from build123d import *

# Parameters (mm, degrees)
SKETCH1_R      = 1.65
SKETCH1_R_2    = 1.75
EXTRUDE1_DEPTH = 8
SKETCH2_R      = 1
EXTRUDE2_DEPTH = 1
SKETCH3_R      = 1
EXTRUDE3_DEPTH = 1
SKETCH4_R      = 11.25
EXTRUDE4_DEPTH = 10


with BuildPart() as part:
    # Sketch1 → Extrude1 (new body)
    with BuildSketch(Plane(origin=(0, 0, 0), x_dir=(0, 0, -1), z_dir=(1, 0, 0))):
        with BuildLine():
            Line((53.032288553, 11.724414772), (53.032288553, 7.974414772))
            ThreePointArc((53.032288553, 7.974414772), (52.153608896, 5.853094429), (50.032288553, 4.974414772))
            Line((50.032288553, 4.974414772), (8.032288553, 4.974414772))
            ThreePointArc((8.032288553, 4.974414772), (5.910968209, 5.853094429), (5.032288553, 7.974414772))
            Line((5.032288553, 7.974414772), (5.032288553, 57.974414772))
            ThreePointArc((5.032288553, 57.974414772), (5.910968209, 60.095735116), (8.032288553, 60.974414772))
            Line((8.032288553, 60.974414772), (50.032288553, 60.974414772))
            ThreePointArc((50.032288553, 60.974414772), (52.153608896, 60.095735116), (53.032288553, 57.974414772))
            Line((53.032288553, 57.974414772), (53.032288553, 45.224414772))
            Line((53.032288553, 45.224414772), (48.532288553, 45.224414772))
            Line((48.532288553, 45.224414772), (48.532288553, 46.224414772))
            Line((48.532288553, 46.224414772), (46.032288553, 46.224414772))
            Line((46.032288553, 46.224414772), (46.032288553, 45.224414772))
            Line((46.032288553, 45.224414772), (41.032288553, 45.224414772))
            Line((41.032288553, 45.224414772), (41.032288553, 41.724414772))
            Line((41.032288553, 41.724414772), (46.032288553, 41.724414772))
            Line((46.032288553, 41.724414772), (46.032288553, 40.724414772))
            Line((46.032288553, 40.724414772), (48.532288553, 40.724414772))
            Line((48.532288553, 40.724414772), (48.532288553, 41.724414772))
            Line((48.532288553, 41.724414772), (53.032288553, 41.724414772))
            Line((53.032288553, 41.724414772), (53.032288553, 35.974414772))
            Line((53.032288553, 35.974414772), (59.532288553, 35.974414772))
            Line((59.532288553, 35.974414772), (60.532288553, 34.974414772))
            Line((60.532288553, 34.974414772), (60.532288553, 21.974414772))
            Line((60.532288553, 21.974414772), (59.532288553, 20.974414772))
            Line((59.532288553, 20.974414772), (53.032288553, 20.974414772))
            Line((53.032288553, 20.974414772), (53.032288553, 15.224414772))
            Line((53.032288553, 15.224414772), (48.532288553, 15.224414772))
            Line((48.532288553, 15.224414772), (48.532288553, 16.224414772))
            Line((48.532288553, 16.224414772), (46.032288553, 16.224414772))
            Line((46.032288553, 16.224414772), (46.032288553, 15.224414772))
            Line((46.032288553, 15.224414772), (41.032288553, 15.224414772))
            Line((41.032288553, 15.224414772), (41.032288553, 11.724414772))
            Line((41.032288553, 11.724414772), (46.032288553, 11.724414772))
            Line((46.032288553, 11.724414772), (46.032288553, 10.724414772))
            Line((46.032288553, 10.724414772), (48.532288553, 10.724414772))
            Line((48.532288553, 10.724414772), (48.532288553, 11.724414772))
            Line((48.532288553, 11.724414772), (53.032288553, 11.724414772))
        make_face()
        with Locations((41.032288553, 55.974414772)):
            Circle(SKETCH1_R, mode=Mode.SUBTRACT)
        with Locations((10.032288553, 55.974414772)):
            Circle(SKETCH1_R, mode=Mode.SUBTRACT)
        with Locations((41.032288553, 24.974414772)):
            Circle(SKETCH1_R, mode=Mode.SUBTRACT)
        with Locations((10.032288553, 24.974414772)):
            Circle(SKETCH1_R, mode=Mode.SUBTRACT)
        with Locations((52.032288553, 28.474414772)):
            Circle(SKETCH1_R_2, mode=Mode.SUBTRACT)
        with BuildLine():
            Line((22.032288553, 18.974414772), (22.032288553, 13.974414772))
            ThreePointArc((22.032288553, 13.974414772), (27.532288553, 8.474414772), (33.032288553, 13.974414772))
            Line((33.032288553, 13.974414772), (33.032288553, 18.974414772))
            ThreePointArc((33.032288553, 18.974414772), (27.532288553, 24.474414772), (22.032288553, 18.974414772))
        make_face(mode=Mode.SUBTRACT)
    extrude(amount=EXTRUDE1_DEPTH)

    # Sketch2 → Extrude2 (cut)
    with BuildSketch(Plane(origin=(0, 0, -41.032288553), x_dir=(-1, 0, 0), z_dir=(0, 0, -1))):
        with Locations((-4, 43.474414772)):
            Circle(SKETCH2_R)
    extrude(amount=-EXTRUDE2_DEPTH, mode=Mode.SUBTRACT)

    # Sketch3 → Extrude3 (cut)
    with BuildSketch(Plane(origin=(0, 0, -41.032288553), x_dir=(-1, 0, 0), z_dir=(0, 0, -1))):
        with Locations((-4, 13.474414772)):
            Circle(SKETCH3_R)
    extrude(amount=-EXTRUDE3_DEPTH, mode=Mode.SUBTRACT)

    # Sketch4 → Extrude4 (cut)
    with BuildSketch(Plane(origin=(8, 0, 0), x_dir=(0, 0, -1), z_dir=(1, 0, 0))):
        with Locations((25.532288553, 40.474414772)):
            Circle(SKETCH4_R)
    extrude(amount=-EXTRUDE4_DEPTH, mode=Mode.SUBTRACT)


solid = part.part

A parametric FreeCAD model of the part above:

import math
import FreeCAD as App
import Part
import Sketcher
from FreeCAD import Vector

doc = App.newDocument("Part")
body = doc.addObject("PartDesign::Body", "Body")

# Sketch on YZ plane
sketch1 = body.newObject("Sketcher::SketchObject", "Sketch")
sketch1.AttachmentSupport = (doc.getObject("YZ_Plane"), [""])
sketch1.MapMode = "FlatFace"
sketch1.addGeometry([
    Part.LineSegment(Vector(8, -53, 0), Vector(11.7, -53, 0)),  # 0
    Part.LineSegment(Vector(11.7, -53, 0), Vector(11.7, -48.5, 0)),  # 1
    Part.LineSegment(Vector(11.7, -48.5, 0), Vector(10.7, -48.5, 0)),  # 2
    Part.LineSegment(Vector(10.7, -48.5, 0), Vector(10.7, -46, 0)),  # 3
    Part.LineSegment(Vector(10.7, -46, 0), Vector(11.7, -46, 0)),  # 4
    Part.LineSegment(Vector(11.7, -46, 0), Vector(11.7, -41, 0)),  # 5
    Part.LineSegment(Vector(11.7, -41, 0), Vector(15.2, -41, 0)),  # 6
    Part.LineSegment(Vector(15.2, -41, 0), Vector(15.2, -46, 0)),  # 7
    Part.LineSegment(Vector(15.2, -46, 0), Vector(16.2, -46, 0)),  # 8
    Part.LineSegment(Vector(16.2, -46, 0), Vector(16.2, -48.5, 0)),  # 9
    Part.LineSegment(Vector(16.2, -48.5, 0), Vector(15.2, -48.5, 0)),  # 10
    Part.LineSegment(Vector(15.2, -48.5, 0), Vector(15.2, -53, 0)),  # 11
    Part.LineSegment(Vector(15.2, -53, 0), Vector(21, -53, 0)),  # 12
    Part.LineSegment(Vector(21, -53, 0), Vector(21, -59.5, 0)),  # 13
    Part.LineSegment(Vector(21, -59.5, 0), Vector(22, -60.5, 0)),  # 14
    Part.LineSegment(Vector(22, -60.5, 0), Vector(35, -60.5, 0)),  # 15
    Part.LineSegment(Vector(35, -60.5, 0), Vector(36, -59.5, 0)),  # 16
    Part.LineSegment(Vector(36, -59.5, 0), Vector(36, -53, 0)),  # 17
    Part.LineSegment(Vector(36, -53, 0), Vector(41.7, -53, 0)),  # 18
    Part.LineSegment(Vector(41.7, -53, 0), Vector(41.7, -48.5, 0)),  # 19
    Part.LineSegment(Vector(41.7, -48.5, 0), Vector(40.7, -48.5, 0)),  # 20
    Part.LineSegment(Vector(40.7, -48.5, 0), Vector(40.7, -46, 0)),  # 21
    Part.LineSegment(Vector(40.7, -46, 0), Vector(41.7, -46, 0)),  # 22
    Part.LineSegment(Vector(41.7, -46, 0), Vector(41.7, -41, 0)),  # 23
    Part.LineSegment(Vector(41.7, -41, 0), Vector(45.2, -41, 0)),  # 24
    Part.LineSegment(Vector(45.2, -41, 0), Vector(45.2, -46, 0)),  # 25
    Part.LineSegment(Vector(45.2, -46, 0), Vector(46.2, -46, 0)),  # 26
    Part.LineSegment(Vector(46.2, -46, 0), Vector(46.2, -48.5, 0)),  # 27
    Part.LineSegment(Vector(46.2, -48.5, 0), Vector(45.2, -48.5, 0)),  # 28
    Part.LineSegment(Vector(45.2, -48.5, 0), Vector(45.2, -53, 0)),  # 29
    Part.LineSegment(Vector(45.2, -53, 0), Vector(58, -53, 0)),  # 30
    Part.ArcOfCircle(Part.Circle(Vector(58, -50, 0), Vector(0, 0, 1), 3), math.radians(-90), math.radians(0)),  # 31
    Part.LineSegment(Vector(61, -50, 0), Vector(61, -8, 0)),  # 32
    Part.ArcOfCircle(Part.Circle(Vector(58, -8, 0), Vector(0, 0, 1), 3), math.radians(0), math.radians(90)),  # 33
    Part.LineSegment(Vector(58, -5, 0), Vector(8, -5, 0)),  # 34
    Part.ArcOfCircle(Part.Circle(Vector(8, -8, 0), Vector(0, 0, 1), 3), math.radians(90), math.radians(180)),  # 35
    Part.LineSegment(Vector(5, -8, 0), Vector(5, -50, 0)),  # 36
    Part.ArcOfCircle(Part.Circle(Vector(8, -50, 0), Vector(0, 0, 1), 3), math.radians(-180), math.radians(-90)),  # 37
    Part.Circle(Vector(28.5, -52, 0), Vector(0, 0, 1), 1.8),  # 38
    Part.Circle(Vector(25, -41, 0), Vector(0, 0, 1), 1.6),  # 39
    Part.ArcOfCircle(Part.Circle(Vector(19, -27.5, 0), Vector(0, 0, 1), 5.5), math.radians(-90), math.radians(90)),  # 40
    Part.LineSegment(Vector(19, -33, 0), Vector(14, -33, 0)),  # 41
    Part.ArcOfCircle(Part.Circle(Vector(14, -27.5, 0), Vector(0, 0, 1), 5.5), math.radians(90), math.radians(270)),  # 42
    Part.LineSegment(Vector(14, -22, 0), Vector(19, -22, 0)),  # 43
    Part.Circle(Vector(25, -10, 0), Vector(0, 0, 1), 1.6),  # 44
    Part.Circle(Vector(56, -41, 0), Vector(0, 0, 1), 1.6),  # 45
    Part.Circle(Vector(56, -10, 0), Vector(0, 0, 1), 1.6),  # 46
], False)
sketch1.addConstraint([
    Sketcher.Constraint("Coincident", 0, 2, 1, 1),
    Sketcher.Constraint("Coincident", 1, 2, 2, 1),
    Sketcher.Constraint("Coincident", 2, 2, 3, 1),
    Sketcher.Constraint("Coincident", 3, 2, 4, 1),
    Sketcher.Constraint("Coincident", 4, 2, 5, 1),
    Sketcher.Constraint("Coincident", 5, 2, 6, 1),
    Sketcher.Constraint("Coincident", 6, 2, 7, 1),
    Sketcher.Constraint("Coincident", 7, 2, 8, 1),
    Sketcher.Constraint("Coincident", 8, 2, 9, 1),
    Sketcher.Constraint("Coincident", 9, 2, 10, 1),
    Sketcher.Constraint("Coincident", 10, 2, 11, 1),
    Sketcher.Constraint("Coincident", 11, 2, 12, 1),
    Sketcher.Constraint("Coincident", 12, 2, 13, 1),
    Sketcher.Constraint("Coincident", 13, 2, 14, 1),
    Sketcher.Constraint("Coincident", 14, 2, 15, 1),
    Sketcher.Constraint("Coincident", 15, 2, 16, 1),
    Sketcher.Constraint("Coincident", 16, 2, 17, 1),
    Sketcher.Constraint("Coincident", 17, 2, 18, 1),
    Sketcher.Constraint("Coincident", 18, 2, 19, 1),
    Sketcher.Constraint("Coincident", 19, 2, 20, 1),
    Sketcher.Constraint("Coincident", 20, 2, 21, 1),
    Sketcher.Constraint("Coincident", 21, 2, 22, 1),
    Sketcher.Constraint("Coincident", 22, 2, 23, 1),
    Sketcher.Constraint("Coincident", 23, 2, 24, 1),
    Sketcher.Constraint("Coincident", 24, 2, 25, 1),
    Sketcher.Constraint("Coincident", 25, 2, 26, 1),
    Sketcher.Constraint("Coincident", 26, 2, 27, 1),
    Sketcher.Constraint("Coincident", 27, 2, 28, 1),
    Sketcher.Constraint("Coincident", 28, 2, 29, 1),
    Sketcher.Constraint("Coincident", 29, 2, 30, 1),
    Sketcher.Constraint("Tangent", 30, 2, 31, 1),
    Sketcher.Constraint("Tangent", 31, 2, 32, 1),
    Sketcher.Constraint("Tangent", 32, 2, 33, 1),
    Sketcher.Constraint("Tangent", 33, 2, 34, 1),
    Sketcher.Constraint("Tangent", 34, 2, 35, 1),
    Sketcher.Constraint("Tangent", 35, 2, 36, 1),
    Sketcher.Constraint("Tangent", 36, 2, 37, 1),
    Sketcher.Constraint("Tangent", 37, 2, 0, 1),
    Sketcher.Constraint("Tangent", 40, 1, 41, 1),
    Sketcher.Constraint("Tangent", 41, 2, 42, 2),
    Sketcher.Constraint("Tangent", 42, 1, 43, 1),
    Sketcher.Constraint("Tangent", 43, 2, 40, 2),
    Sketcher.Constraint("Horizontal", 0),
    Sketcher.Constraint("Vertical", 1),
    Sketcher.Constraint("Horizontal", 2),
    Sketcher.Constraint("Vertical", 3),
    Sketcher.Constraint("Horizontal", 4),
    Sketcher.Constraint("Vertical", 5),
    Sketcher.Constraint("Horizontal", 6),
    Sketcher.Constraint("Vertical", 7),
    Sketcher.Constraint("Horizontal", 8),
    Sketcher.Constraint("Vertical", 9),
    Sketcher.Constraint("Horizontal", 10),
    Sketcher.Constraint("Vertical", 11),
    Sketcher.Constraint("Horizontal", 12),
    Sketcher.Constraint("Vertical", 13),
    Sketcher.Constraint("Horizontal", 15),
    Sketcher.Constraint("Vertical", 17),
    Sketcher.Constraint("Horizontal", 18),
    Sketcher.Constraint("Vertical", 19),
    Sketcher.Constraint("Horizontal", 20),
    Sketcher.Constraint("Vertical", 21),
    Sketcher.Constraint("Horizontal", 22),
    Sketcher.Constraint("Vertical", 23),
    Sketcher.Constraint("Horizontal", 24),
    Sketcher.Constraint("Vertical", 25),
    Sketcher.Constraint("Horizontal", 26),
    Sketcher.Constraint("Vertical", 27),
    Sketcher.Constraint("Horizontal", 28),
    Sketcher.Constraint("Vertical", 29),
    Sketcher.Constraint("Horizontal", 30),
    Sketcher.Constraint("Vertical", 32),
    Sketcher.Constraint("Horizontal", 34),
    Sketcher.Constraint("Vertical", 36),
    Sketcher.Constraint("Horizontal", 41),
    Sketcher.Constraint("Horizontal", 43),
    Sketcher.Constraint("Equal", 31, 33),
    Sketcher.Constraint("Equal", 33, 35),
    Sketcher.Constraint("Equal", 35, 37),
    Sketcher.Constraint("Equal", 39, 44),
    Sketcher.Constraint("Equal", 44, 45),
    Sketcher.Constraint("Equal", 45, 46),
    Sketcher.Constraint("Perpendicular", 14, 16),
    Sketcher.Constraint("Horizontal", 31, 3, 37, 3),
    Sketcher.Constraint("Horizontal", 39, 3, 45, 3),
    Sketcher.Constraint("Horizontal", 44, 3, 46, 3),
    Sketcher.Constraint("Horizontal", 45, 3, 5, 2),
    Sketcher.Constraint("Horizontal", 4, 2, 7, 2),
    Sketcher.Constraint("Horizontal", 2, 2, 9, 2),
    Sketcher.Constraint("Horizontal", 0, 2, 11, 2),
    Sketcher.Constraint("Horizontal", 13, 2, 16, 2),
    Sketcher.Constraint("Horizontal", 12, 2, 17, 2),
    Sketcher.Constraint("Horizontal", 10, 2, 19, 2),
    Sketcher.Constraint("Horizontal", 8, 2, 21, 2),
    Sketcher.Constraint("Horizontal", 6, 2, 23, 2),
    Sketcher.Constraint("Horizontal", 22, 2, 25, 2),
    Sketcher.Constraint("Horizontal", 20, 2, 27, 2),
    Sketcher.Constraint("Vertical", 39, 3, 44, 3),
    Sketcher.Constraint("Vertical", 45, 3, 46, 3),
    Sketcher.Constraint("Vertical", 1, 2, 4, 2),
    Sketcher.Constraint("Vertical", 7, 2, 10, 2),
    Sketcher.Constraint("Vertical", 19, 2, 22, 2),
    Sketcher.Constraint("Vertical", 25, 2, 28, 2),
    Sketcher.Constraint("Equal", 4, 8),
    Sketcher.Constraint("Equal", 12, 18),
    Sketcher.Constraint("Equal", 10, 20),
    Sketcher.Constraint("Equal", 6, 24),
    Sketcher.Constraint("Equal", 22, 26),
    Sketcher.Constraint("Equal", 43, 5),
    Sketcher.Constraint("Equal", 14, 16),
    Sketcher.Constraint("Radius", 31, 3.0),
    Sketcher.Constraint("Diameter", 38, 3.5),
    Sketcher.Constraint("Diameter", 39, 3.3),
    Sketcher.Constraint("Radius", 40, 5.5),
    Sketcher.Constraint("DistanceX", 2, 2, 2, 1, 1.0),
    Sketcher.Constraint("DistanceX", 15, 1, 15, 2, 13.0),
    Sketcher.Constraint("DistanceX", 34, 2, 34, 1, 50.0),
    Sketcher.Constraint("DistanceX", 41, 2, 41, 1, 5.0),
    Sketcher.Constraint("DistanceY", 32, 1, 32, 2, 42.0),
    Sketcher.Constraint("DistanceX", 6, 1, 6, 2, 3.5),
    Sketcher.Constraint("DistanceY", 1, 1, 1, 2, 4.5),
    Sketcher.Constraint("DistanceY", 3, 1, 3, 2, 2.5),
    Sketcher.Constraint("DistanceY", 13, 2, 13, 1, 6.5),
    Sketcher.Constraint("DistanceY", 38, 3, 37, 3, 2.0),
    Sketcher.Constraint("DistanceX", 37, 3, 39, 3, 17.0),
    Sketcher.Constraint("DistanceX", 40, 3, 39, 3, 6.0),
    Sketcher.Constraint("DistanceY", 44, 3, 35, 3, 2.0),
    Sketcher.Constraint("DistanceX", 45, 3, 31, 3, 2.0),
    Sketcher.Constraint("DistanceY", 1, 2, 42, 3, 21.0),
    Sketcher.Constraint("DistanceX", 13, 2, 14, 2, 1.0),
    Sketcher.Constraint("DistanceX", 0, 1, 0, 2, 3.75),
    Sketcher.Constraint("DistanceX", 12, 1, 12, 2, 5.75),
    Sketcher.Constraint("DistanceX", 37, 3, 38, 3, 20.5),
    Sketcher.Constraint("DistanceY", 31, 3, -1, 1, 50.032289),
    Sketcher.Constraint("DistanceX", -1, 1, 31, 3, 57.974415),
])
pad1 = body.newObject("PartDesign::Pad", "Pad")
pad1.Profile = sketch1
pad1.Length = 8

# Sketch on XY plane
sketch2 = body.newObject("Sketcher::SketchObject", "Sketch001")
sketch2.AttachmentSupport = (doc.getObject("XY_Plane"), [""])
sketch2.MapMode = "FlatFace"
sketch2.AttachmentOffset = App.Placement(Vector(0, 0, -41.032289), App.Rotation())
sketch2.addGeometry(Part.Circle(Vector(4, 43.5, 0), Vector(0, 0, 1), 1), False)
sketch2.addConstraint([
    Sketcher.Constraint("Diameter", 0, 2.0),
    Sketcher.Constraint("DistanceX", -1, 1, 0, 3, 4.0),
    Sketcher.Constraint("DistanceY", -1, 1, 0, 3, 43.474415),
])
pocket1 = body.newObject("PartDesign::Pocket", "Pocket")
pocket1.Profile = sketch2
pocket1.Length = 1
pocket1.Reversed = True

# Sketch on XY plane
sketch3 = body.newObject("Sketcher::SketchObject", "Sketch002")
sketch3.AttachmentSupport = (doc.getObject("XY_Plane"), [""])
sketch3.MapMode = "FlatFace"
sketch3.AttachmentOffset = App.Placement(Vector(0, 0, -41.032289), App.Rotation())
sketch3.addGeometry(Part.Circle(Vector(4, 13.5, 0), Vector(0, 0, 1), 1), False)
sketch3.addConstraint([
    Sketcher.Constraint("Diameter", 0, 2.0),
    Sketcher.Constraint("DistanceX", -1, 1, 0, 3, 4.0),
    Sketcher.Constraint("DistanceY", -1, 1, 0, 3, 13.474415),
])
pocket2 = body.newObject("PartDesign::Pocket", "Pocket001")
pocket2.Profile = sketch3
pocket2.Length = 1
pocket2.Reversed = True

# Sketch on YZ plane
sketch4 = body.newObject("Sketcher::SketchObject", "Sketch003")
sketch4.AttachmentSupport = (doc.getObject("YZ_Plane"), [""])
sketch4.MapMode = "FlatFace"
sketch4.AttachmentOffset = App.Placement(Vector(0, 0, 8), App.Rotation())
sketch4.addGeometry(Part.Circle(Vector(40, -26, 0), Vector(0, 0, 1), 11), False)
sketch4.addConstraint([
    Sketcher.Constraint("Diameter", 0, 22.5),
    Sketcher.Constraint("DistanceY", 0, 3, -1, 1, 25.532289),
    Sketcher.Constraint("DistanceX", -1, 1, 0, 3, 40.474415),
])
pocket3 = body.newObject("PartDesign::Pocket", "Pocket002")
pocket3.Profile = sketch4
pocket3.Length = 10

doc.recompute()
